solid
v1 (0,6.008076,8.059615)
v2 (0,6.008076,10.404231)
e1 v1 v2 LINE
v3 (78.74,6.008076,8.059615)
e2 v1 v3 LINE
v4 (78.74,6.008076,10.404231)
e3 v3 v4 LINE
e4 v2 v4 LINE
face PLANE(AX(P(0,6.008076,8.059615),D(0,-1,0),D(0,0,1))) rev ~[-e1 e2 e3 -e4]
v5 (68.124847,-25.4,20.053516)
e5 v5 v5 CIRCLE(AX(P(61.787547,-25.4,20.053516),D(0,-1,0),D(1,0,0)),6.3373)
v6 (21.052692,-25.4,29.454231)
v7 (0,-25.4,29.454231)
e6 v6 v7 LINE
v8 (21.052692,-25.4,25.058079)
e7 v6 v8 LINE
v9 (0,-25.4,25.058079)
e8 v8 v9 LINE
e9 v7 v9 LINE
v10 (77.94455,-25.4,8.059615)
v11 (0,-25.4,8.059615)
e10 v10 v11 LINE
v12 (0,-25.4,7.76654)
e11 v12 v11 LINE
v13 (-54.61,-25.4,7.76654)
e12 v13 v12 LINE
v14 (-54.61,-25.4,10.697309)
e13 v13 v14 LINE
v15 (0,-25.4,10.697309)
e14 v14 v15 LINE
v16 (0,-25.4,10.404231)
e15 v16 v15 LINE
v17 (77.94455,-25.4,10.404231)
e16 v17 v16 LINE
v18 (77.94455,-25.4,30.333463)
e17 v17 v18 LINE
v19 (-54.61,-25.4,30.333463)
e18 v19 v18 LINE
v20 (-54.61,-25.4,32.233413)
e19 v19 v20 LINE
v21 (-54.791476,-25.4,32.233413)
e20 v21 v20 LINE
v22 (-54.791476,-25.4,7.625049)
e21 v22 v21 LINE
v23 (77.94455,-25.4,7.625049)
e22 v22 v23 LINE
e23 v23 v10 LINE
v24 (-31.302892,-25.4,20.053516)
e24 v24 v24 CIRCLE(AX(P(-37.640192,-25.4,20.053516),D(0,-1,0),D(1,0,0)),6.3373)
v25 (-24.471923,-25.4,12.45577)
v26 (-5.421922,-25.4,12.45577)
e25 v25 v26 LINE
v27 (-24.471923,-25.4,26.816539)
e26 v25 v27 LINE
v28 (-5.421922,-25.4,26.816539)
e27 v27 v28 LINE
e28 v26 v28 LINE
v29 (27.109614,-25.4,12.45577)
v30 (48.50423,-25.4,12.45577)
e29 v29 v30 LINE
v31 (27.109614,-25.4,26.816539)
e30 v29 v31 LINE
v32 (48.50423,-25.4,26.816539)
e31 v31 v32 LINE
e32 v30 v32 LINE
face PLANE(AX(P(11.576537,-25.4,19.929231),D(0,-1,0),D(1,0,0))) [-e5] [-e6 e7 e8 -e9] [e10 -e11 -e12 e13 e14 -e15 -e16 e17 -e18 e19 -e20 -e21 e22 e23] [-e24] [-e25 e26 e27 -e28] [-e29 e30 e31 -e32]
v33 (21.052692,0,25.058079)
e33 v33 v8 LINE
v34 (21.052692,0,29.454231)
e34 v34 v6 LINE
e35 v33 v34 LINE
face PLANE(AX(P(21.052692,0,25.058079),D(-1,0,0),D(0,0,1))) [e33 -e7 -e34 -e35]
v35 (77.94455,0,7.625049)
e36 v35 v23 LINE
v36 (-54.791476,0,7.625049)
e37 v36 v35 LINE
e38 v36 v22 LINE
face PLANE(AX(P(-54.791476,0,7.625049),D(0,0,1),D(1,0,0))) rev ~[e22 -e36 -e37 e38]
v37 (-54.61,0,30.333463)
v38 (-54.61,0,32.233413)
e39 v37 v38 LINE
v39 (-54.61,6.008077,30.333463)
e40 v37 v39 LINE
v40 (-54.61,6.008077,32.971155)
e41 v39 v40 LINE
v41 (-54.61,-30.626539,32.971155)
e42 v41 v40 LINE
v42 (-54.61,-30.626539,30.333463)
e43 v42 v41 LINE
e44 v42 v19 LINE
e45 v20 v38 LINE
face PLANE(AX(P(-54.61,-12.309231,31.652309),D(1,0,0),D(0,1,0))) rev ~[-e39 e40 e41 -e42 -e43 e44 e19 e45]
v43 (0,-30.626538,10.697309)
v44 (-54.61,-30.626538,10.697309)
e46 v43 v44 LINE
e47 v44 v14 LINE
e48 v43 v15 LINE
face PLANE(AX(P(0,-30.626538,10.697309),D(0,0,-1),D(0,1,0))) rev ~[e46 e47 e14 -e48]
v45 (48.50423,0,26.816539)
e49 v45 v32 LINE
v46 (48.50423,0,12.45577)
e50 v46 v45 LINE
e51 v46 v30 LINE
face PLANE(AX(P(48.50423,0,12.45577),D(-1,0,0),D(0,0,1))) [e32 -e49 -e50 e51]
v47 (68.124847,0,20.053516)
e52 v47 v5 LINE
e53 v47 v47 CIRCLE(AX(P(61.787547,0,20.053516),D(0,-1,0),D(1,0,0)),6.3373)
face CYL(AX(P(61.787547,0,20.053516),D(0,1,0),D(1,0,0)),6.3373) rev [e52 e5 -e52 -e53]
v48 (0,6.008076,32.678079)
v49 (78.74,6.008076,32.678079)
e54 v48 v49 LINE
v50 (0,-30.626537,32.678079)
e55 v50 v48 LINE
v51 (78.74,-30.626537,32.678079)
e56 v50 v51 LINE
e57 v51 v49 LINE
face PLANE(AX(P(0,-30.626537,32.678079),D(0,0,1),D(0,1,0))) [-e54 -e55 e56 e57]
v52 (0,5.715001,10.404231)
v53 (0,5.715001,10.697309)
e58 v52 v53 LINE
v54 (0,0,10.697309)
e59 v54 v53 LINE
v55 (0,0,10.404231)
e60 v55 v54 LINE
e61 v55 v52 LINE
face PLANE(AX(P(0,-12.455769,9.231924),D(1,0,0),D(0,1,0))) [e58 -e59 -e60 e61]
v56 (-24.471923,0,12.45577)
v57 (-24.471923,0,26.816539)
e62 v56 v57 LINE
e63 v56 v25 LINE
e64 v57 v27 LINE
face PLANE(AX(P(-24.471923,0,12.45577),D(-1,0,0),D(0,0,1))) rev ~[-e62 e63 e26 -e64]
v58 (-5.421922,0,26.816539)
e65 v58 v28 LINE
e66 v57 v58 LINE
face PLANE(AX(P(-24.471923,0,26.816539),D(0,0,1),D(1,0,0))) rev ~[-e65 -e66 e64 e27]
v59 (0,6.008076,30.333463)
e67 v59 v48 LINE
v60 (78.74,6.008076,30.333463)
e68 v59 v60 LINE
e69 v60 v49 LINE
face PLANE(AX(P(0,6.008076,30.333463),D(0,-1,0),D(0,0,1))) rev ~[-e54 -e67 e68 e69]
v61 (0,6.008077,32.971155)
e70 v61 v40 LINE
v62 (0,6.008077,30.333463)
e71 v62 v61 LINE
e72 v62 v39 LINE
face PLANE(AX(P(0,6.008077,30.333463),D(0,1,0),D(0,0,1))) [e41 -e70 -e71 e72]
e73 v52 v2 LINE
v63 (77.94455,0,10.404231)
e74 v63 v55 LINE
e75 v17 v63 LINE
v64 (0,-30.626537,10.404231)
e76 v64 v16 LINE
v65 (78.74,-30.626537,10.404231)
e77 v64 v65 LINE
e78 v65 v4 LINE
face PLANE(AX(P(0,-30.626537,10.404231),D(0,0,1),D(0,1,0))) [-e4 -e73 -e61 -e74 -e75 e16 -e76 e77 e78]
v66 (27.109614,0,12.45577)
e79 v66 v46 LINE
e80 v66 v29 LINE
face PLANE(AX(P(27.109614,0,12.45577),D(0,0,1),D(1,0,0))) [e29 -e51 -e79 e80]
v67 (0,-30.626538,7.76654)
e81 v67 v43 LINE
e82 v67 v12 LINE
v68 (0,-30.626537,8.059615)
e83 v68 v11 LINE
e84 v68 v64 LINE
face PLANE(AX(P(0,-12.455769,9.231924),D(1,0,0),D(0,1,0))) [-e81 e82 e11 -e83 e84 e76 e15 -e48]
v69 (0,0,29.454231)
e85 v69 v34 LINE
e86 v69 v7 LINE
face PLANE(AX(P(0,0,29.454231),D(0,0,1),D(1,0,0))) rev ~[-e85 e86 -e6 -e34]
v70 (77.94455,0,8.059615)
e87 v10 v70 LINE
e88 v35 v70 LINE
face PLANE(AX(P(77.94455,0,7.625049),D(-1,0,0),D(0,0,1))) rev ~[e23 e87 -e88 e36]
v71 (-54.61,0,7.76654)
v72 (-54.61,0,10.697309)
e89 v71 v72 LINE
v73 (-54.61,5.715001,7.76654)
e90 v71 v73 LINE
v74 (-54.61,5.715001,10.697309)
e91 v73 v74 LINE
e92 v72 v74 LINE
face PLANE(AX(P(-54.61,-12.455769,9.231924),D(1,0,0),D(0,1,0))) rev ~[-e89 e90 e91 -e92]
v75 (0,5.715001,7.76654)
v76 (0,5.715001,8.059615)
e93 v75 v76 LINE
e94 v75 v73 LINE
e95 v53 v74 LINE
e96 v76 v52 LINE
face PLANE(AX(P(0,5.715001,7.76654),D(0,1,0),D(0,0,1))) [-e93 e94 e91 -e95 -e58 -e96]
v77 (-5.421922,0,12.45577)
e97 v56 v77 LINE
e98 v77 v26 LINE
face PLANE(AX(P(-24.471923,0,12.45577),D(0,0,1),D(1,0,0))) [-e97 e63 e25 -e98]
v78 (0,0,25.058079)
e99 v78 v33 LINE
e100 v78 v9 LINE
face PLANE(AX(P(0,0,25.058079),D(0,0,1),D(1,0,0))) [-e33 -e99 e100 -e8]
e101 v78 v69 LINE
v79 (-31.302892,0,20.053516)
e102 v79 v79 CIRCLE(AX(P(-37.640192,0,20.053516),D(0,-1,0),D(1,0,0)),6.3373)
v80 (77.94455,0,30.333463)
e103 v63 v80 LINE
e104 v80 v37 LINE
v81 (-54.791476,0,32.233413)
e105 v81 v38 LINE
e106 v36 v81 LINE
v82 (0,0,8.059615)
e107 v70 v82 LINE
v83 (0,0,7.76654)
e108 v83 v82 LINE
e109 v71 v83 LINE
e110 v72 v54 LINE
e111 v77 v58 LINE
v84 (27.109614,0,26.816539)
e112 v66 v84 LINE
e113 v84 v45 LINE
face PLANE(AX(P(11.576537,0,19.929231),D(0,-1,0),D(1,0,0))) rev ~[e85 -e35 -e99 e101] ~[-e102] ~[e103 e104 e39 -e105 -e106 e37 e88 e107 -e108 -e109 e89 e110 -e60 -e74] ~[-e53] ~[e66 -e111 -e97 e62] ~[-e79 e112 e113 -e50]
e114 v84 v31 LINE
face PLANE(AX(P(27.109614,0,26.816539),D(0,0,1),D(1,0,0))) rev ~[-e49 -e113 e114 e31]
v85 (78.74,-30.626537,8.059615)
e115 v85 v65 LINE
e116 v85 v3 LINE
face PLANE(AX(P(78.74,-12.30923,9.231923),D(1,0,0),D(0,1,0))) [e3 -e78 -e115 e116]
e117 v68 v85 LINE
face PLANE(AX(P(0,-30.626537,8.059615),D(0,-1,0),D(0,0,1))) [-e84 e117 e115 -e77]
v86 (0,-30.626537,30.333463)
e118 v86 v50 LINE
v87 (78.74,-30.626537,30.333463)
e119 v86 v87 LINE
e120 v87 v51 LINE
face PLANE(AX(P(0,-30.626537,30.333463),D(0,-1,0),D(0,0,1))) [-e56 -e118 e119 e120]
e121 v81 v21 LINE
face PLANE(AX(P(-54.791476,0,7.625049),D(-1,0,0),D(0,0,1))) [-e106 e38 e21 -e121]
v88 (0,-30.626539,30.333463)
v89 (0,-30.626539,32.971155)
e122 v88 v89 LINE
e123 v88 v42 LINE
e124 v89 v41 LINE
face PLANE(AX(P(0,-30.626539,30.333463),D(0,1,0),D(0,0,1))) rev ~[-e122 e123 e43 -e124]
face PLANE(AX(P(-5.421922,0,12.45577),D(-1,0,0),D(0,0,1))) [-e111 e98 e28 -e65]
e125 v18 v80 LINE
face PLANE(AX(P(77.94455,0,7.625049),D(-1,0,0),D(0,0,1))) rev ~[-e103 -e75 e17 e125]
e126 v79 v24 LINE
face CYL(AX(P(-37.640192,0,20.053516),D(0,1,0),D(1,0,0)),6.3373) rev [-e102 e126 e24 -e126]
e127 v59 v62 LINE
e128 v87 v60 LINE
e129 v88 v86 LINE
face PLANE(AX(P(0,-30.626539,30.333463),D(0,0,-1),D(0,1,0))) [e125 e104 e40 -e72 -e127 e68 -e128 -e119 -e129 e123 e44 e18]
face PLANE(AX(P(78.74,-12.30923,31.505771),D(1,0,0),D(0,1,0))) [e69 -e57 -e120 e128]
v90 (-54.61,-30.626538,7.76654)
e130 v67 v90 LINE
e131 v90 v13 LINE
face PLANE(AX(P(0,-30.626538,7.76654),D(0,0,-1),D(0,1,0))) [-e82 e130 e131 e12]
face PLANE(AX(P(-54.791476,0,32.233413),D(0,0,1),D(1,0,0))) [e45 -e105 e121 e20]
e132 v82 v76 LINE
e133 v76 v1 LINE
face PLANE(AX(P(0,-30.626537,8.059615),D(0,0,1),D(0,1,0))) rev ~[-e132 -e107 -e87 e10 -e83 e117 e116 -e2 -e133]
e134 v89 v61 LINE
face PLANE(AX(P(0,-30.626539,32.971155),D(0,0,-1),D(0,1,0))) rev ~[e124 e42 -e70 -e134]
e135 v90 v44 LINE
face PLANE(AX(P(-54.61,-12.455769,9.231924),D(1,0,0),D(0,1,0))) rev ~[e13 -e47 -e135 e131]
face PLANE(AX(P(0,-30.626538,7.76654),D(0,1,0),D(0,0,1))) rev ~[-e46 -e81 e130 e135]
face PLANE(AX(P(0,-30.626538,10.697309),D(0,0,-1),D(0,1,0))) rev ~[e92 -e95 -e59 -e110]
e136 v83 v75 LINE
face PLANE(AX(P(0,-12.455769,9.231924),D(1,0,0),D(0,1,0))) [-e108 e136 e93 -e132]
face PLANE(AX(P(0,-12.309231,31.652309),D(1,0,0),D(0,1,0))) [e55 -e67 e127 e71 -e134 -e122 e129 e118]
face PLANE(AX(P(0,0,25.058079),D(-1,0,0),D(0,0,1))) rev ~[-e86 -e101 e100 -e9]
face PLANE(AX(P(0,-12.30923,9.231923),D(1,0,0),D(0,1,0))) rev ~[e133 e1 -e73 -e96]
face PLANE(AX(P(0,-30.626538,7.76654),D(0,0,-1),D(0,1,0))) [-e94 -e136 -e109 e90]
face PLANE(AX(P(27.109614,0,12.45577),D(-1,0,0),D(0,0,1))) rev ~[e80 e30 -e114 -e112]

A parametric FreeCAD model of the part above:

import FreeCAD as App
import Part
import Sketcher

V = App.Vector
Q = App.Units.Quantity

doc = App.newDocument("Part")
body = doc.addObject("PartDesign::Body", "Body")

sketch1 = body.newObject("Sketcher::SketchObject", "Sketch")
sketch1.AttachmentSupport = (doc.getObject("XZ_Plane"), [""])
sketch1.MapMode = "FlatFace"
sketch1.addGeometry([
    Part.LineSegment(V(-55, 32, 0), V(-55, 8, 0)),
    Part.LineSegment(V(-55, 8, 0), V(78, 8, 0)),
    Part.LineSegment(V(78, 8, 0), V(78, 32, 0)),
    Part.LineSegment(V(78, 32, 0), V(-55, 32, 0)),
    Part.Circle(V(-38, 20, 0), V(0, 0, 1), 6),
    Part.LineSegment(V(-5, 12, 0), V(-24, 12, 0)),
    Part.LineSegment(V(-24, 12, 0), V(-24, 27, 0)),
    Part.LineSegment(V(-24, 27, 0), V(-5, 27, 0)),
    Part.LineSegment(V(-5, 27, 0), V(-5, 12, 0)),
    Part.LineSegment(V(49, 12, 0), V(27, 12, 0)),
    Part.LineSegment(V(27, 12, 0), V(27, 27, 0)),
    Part.LineSegment(V(27, 27, 0), V(49, 27, 0)),
    Part.LineSegment(V(49, 27, 0), V(49, 12, 0)),
    Part.Circle(V(62, 20, 0), V(0, 0, 1), 6),
], False)
sketch1.addConstraint([
    Sketcher.Constraint("Coincident", 0, 2, 1, 1),
    Sketcher.Constraint("Coincident", 1, 2, 2, 1),
    Sketcher.Constraint("Coincident", 2, 2, 3, 1),
    Sketcher.Constraint("Coincident", 3, 2, 0, 1),
    Sketcher.Constraint("Coincident", 5, 2, 6, 1),
    Sketcher.Constraint("Coincident", 6, 2, 7, 1),
    Sketcher.Constraint("Coincident", 7, 2, 8, 1),
    Sketcher.Constraint("Coincident", 8, 2, 5, 1),
    Sketcher.Constraint("Coincident", 9, 2, 10, 1),
    Sketcher.Constraint("Coincident", 10, 2, 11, 1),
    Sketcher.Constraint("Coincident", 11, 2, 12, 1),
    Sketcher.Constraint("Coincident", 12, 2, 9, 1),
    Sketcher.Constraint("Vertical", 0),
    Sketcher.Constraint("Horizontal", 1),
    Sketcher.Constraint("Vertical", 2),
    Sketcher.Constraint("Horizontal", 3),
    Sketcher.Constraint("Horizontal", 5),
    Sketcher.Constraint("Vertical", 6),
    Sketcher.Constraint("Horizontal", 7),
    Sketcher.Constraint("Vertical", 8),
    Sketcher.Constraint("Horizontal", 9),
    Sketcher.Constraint("Vertical", 10),
    Sketcher.Constraint("Horizontal", 11),
    Sketcher.Constraint("Vertical", 12),
    Sketcher.Constraint("Equal", 4, 13),
    Sketcher.Constraint("Horizontal", 4, 3, 13, 3),
    Sketcher.Constraint("Horizontal", 8, 2, 9, 2),
    Sketcher.Constraint("Horizontal", 7, 2, 10, 2),
    Sketcher.Constraint("Diameter", 4, Q("0.499 in")),
    Sketcher.Constraint("DistanceX", 5, 2, 5, 1, Q("0.75 in")),
    Sketcher.Constraint("DistanceY", 6, 1, 6, 2, Q("14.360769 mm")),
    Sketcher.Constraint("DistanceX", 1, 1, 1, 2, Q("132.736026 mm")),
    Sketcher.Constraint("DistanceX", 9, 2, 9, 1, Q("21.394616 mm")),
    Sketcher.Constraint("DistanceY", 0, 2, 0, 1, Q("24.608365 mm")),
    Sketcher.Constraint("DistanceY", -1, 1, 0, 2, Q("7.625049 mm")),
    Sketcher.Constraint("DistanceX", -1, 1, 1, 2, Q("77.94455 mm")),
    Sketcher.Constraint("DistanceY", -1, 1, 5, 2, Q("12.45577 mm")),
    Sketcher.Constraint("DistanceX", -1, 1, 11, 2, Q("48.50423 mm")),
    Sketcher.Constraint("DistanceX", 4, 3, 13, 3, Q("99.427739 mm")),
    Sketcher.Constraint("DistanceX", 4, 3, 5, 2, Q("13.168268 mm")),
    Sketcher.Constraint("DistanceX", 4, 3, -1, 1, Q("37.640192 mm")),
    Sketcher.Constraint("DistanceY", -1, 1, 4, 3, Q("20.053516 mm")),
])
pad1 = body.newObject("PartDesign::Pad", "Pad")
pad1.Profile = sketch1
pad1.Length = Q("1 in")

sketch2 = body.newObject("Sketcher::SketchObject", "Sketch001")
sketch2.AttachmentSupport = (doc.getObject("YZ_Plane"), [""])
sketch2.MapMode = "FlatFace"
sketch2.addGeometry([
    Part.LineSegment(V(-30.6, 32.7, 0), V(-30.6, 30.3, 0)),
    Part.LineSegment(V(-30.6, 30.3, 0), V(6, 30.3, 0)),
    Part.LineSegment(V(6, 30.3, 0), V(6, 32.7, 0)),
    Part.LineSegment(V(6, 32.7, 0), V(-30.6, 32.7, 0)),
    Part.LineSegment(V(-30.6, 10.4, 0), V(-30.6, 8.1, 0)),
    Part.LineSegment(V(-30.6, 8.1, 0), V(6, 8.1, 0)),
    Part.LineSegment(V(6, 8.1, 0), V(6, 10.4, 0)),
    Part.LineSegment(V(6, 10.4, 0), V(-30.6, 10.4, 0)),
], False)
sketch2.addConstraint([
    Sketcher.Constraint("Coincident", 0, 2, 1, 1),
    Sketcher.Constraint("Coincident", 1, 2, 2, 1),
    Sketcher.Constraint("Coincident", 2, 2, 3, 1),
    Sketcher.Constraint("Coincident", 3, 2, 0, 1),
    Sketcher.Constraint("Coincident", 4, 2, 5, 1),
    Sketcher.Constraint("Coincident", 5, 2, 6, 1),
    Sketcher.Constraint("Coincident", 6, 2, 7, 1),
    Sketcher.Constraint("Coincident", 7, 2, 4, 1),
    Sketcher.Constraint("Vertical", 0),
    Sketcher.Constraint("Horizontal", 1),
    Sketcher.Constraint("Vertical", 2),
    Sketcher.Constraint("Horizontal", 3),
    Sketcher.Constraint("Vertical", 4),
    Sketcher.Constraint("Horizontal", 5),
    Sketcher.Constraint("Vertical", 6),
    Sketcher.Constraint("Horizontal", 7),
    Sketcher.Constraint("Vertical", 3, 2, 4, 2),
    Sketcher.Constraint("Vertical", 2, 2, 5, 2),
    Sketcher.Constraint("Equal", 2, 4),
    Sketcher.Constraint("DistanceX", 1, 1, 1, 2, Q("36.634613 mm")),
    Sketcher.Constraint("DistanceY", 0, 2, 0, 1, Q("2.344616 mm")),
    Sketcher.Constraint("DistanceY", -1, 1, 2, 2, Q("32.678079 mm")),
    Sketcher.Constraint("DistanceY", -1, 1, 6, 2, Q("10.404231 mm")),
    Sketcher.Constraint("DistanceX", 0, 2, -1, 1, Q("30.626537 mm")),
])
pad2 = body.newObject("PartDesign::Pad", "Pad001")
pad2.Profile = sketch2
pad2.Length = Q("3.1 in")

sketch3 = body.newObject("Sketcher::SketchObject", "Sketch002")
sketch3.AttachmentSupport = (doc.getObject("YZ_Plane"), [""])
sketch3.MapMode = "FlatFace"
sketch3.addGeometry([
    Part.LineSegment(V(-30.6, 33, 0), V(-30.6, 30.3, 0)),
    Part.LineSegment(V(-30.6, 30.3, 0), V(6, 30.3, 0)),
    Part.LineSegment(V(6, 30.3, 0), V(6, 33, 0)),
    Part.LineSegment(V(6, 33, 0), V(-30.6, 33, 0)),
    Part.LineSegment(V(-30.6, 10.7, 0), V(-30.6, 7.8, 0)),
    Part.LineSegment(V(-30.6, 7.8, 0), V(5.7, 7.8, 0)),
    Part.LineSegment(V(5.7, 7.8, 0), V(5.7, 10.7, 0)),
    Part.LineSegment(V(5.7, 10.7, 0), V(-30.6, 10.7, 0)),
], False)
sketch3.addConstraint([
    Sketcher.Constraint("Coincident", 0, 2, 1, 1),
    Sketcher.Constraint("Coincident", 1, 2, 2, 1),
    Sketcher.Constraint("Coincident", 2, 2, 3, 1),
    Sketcher.Constraint("Coincident", 3, 2, 0, 1),
    Sketcher.Constraint("Coincident", 4, 2, 5, 1),
    Sketcher.Constraint("Coincident", 5, 2, 6, 1),
    Sketcher.Constraint("Coincident", 6, 2, 7, 1),
    Sketcher.Constraint("Coincident", 7, 2, 4, 1),
    Sketcher.Constraint("Vertical", 0),
    Sketcher.Constraint("Horizontal", 1),
    Sketcher.Constraint("Vertical", 2),
    Sketcher.Constraint("Horizontal", 3),
    Sketcher.Constraint("Vertical", 4),
    Sketcher.Constraint("Horizontal", 5),
    Sketcher.Constraint("Vertical", 6),
    Sketcher.Constraint("Horizontal", 7),
    Sketcher.Constraint("Vertical", 3, 2, 4, 2),
    Sketcher.Constraint("DistanceX", -1, 1, 5, 2, Q("0.225 in")),
    Sketcher.Constraint("DistanceX", 5, 1, 5, 2, Q("36.341539 mm")),
    Sketcher.Constraint("DistanceY", 4, 2, 4, 1, Q("2.930769 mm")),
    Sketcher.Constraint("DistanceX", 1, 1, 1, 2, Q("36.634616 mm")),
    Sketcher.Constraint("DistanceY", 0, 2, 0, 1, Q("2.637692 mm")),
    Sketcher.Constraint("DistanceY", -1, 1, 4, 2, Q("7.76654 mm")),
    Sketcher.Constraint("DistanceY", -1, 1, 0, 2, Q("30.333463 mm")),
])
pad3 = body.newObject("PartDesign::Pad", "Pad002")
pad3.Profile = sketch3
pad3.Length = Q("2.15 in")
pad3.Reversed = True

sketch4 = body.newObject("Sketcher::SketchObject", "Sketch003")
sketch4.AttachmentSupport = (doc.getObject("XZ_Plane"), [""])
sketch4.MapMode = "FlatFace"
sketch4.addGeometry([
    Part.LineSegment(V(0, 29.5, 0), V(0, 25.1, 0)),
    Part.LineSegment(V(0, 25.1, 0), V(21.1, 25.1, 0)),
    Part.LineSegment(V(21.1, 25.1, 0), V(21.1, 29.5, 0)),
    Part.LineSegment(V(21.1, 29.5, 0), V(0, 29.5, 0)),
], False)
sketch4.addConstraint([
    Sketcher.Constraint("Coincident", 0, 2, 1, 1),
    Sketcher.Constraint("Coincident", 1, 2, 2, 1),
    Sketcher.Constraint("Coincident", 2, 2, 3, 1),
    Sketcher.Constraint("Coincident", 3, 2, 0, 1),
    Sketcher.Constraint("Vertical", 0),
    Sketcher.Constraint("Horizontal", 1),
    Sketcher.Constraint("Vertical", 2),
    Sketcher.Constraint("Horizontal", 3),
    Sketcher.Constraint("PointOnObject", 0, 2, -2),
    Sketcher.Constraint("DistanceX", 1, 1, 1, 2, Q("21.052692 mm")),
    Sketcher.Constraint("DistanceY", 0, 2, 0, 1, Q("4.396153 mm")),
    Sketcher.Constraint("DistanceY", -1, 1, 0, 2, Q("25.058079 mm")),
])
pocket1 = body.newObject("PartDesign::Pocket", "Pocket")
pocket1.Profile = sketch4
pocket1.Length = Q("2 in")
pocket1.Reversed = True

doc.recompute()
